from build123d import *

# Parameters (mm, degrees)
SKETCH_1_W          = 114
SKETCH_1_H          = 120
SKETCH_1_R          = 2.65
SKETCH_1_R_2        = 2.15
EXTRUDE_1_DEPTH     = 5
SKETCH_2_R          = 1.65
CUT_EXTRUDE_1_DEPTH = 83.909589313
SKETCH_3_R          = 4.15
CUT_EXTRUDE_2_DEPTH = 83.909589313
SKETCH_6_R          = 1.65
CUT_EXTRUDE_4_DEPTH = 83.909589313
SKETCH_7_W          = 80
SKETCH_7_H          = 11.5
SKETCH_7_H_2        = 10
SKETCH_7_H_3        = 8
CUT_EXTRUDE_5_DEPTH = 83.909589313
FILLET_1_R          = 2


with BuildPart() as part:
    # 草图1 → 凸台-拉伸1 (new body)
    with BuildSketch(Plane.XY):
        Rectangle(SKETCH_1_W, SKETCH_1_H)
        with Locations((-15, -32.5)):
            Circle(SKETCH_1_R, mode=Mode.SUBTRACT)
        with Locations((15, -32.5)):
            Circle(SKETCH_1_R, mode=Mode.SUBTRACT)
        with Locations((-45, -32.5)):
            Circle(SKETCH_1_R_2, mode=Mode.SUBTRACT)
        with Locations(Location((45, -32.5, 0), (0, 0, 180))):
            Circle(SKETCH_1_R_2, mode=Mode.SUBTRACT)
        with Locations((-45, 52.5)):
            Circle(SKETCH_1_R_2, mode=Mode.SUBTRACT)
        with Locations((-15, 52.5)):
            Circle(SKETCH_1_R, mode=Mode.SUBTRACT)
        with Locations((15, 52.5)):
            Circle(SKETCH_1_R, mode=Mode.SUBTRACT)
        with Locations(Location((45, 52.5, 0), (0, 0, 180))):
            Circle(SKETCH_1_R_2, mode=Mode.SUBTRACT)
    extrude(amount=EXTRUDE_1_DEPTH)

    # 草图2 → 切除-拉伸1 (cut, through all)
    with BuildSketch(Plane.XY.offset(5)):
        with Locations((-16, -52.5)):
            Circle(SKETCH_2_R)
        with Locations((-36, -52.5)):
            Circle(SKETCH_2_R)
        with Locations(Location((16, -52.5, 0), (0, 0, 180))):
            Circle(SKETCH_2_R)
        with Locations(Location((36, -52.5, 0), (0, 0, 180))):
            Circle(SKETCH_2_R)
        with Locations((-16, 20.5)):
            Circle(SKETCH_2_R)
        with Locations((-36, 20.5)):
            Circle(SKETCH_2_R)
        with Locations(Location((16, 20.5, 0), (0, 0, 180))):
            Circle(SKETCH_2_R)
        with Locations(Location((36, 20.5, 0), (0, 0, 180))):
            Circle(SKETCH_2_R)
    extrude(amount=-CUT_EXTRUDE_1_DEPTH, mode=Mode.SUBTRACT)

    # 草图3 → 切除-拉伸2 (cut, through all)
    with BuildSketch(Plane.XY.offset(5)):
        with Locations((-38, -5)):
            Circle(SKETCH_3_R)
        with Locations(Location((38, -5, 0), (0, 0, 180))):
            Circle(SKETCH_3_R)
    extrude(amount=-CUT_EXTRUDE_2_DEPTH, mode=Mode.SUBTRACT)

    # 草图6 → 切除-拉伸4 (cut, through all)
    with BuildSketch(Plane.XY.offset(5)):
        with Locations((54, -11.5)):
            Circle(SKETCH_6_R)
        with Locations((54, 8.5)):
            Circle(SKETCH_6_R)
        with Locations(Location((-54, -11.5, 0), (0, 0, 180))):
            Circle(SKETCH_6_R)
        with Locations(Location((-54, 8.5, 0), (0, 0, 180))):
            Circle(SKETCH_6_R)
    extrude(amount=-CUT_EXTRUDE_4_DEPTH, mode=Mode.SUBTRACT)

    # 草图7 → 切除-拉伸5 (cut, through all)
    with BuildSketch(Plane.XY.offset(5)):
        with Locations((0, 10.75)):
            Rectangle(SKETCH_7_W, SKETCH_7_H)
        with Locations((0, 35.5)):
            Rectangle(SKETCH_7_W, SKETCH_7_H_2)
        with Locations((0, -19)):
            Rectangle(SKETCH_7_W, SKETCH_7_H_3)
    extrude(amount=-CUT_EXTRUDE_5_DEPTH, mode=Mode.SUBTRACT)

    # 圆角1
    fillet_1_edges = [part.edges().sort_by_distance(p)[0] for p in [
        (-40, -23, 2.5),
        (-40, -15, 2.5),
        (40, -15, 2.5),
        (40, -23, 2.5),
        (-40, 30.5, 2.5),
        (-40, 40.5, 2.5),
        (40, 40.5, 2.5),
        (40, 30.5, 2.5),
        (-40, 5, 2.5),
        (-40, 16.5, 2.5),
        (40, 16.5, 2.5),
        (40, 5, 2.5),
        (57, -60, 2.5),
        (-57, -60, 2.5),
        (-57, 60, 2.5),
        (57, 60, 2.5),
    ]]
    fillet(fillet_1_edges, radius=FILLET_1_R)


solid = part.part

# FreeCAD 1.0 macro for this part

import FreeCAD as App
import Part
import Sketcher


def edges_at(feature, points):
    """Names of the edges that pass closest to the given points."""
    edges = feature.Shape.Edges
    near = lambda p: min(range(len(edges)), key=lambda i: edges[i].distToShape(Part.Vertex(*p))[0])
    return sorted({f"Edge{near(p) + 1}" for p in points})


def add_polygon(sketch, points):
    """Adds a closed chain of lines whose ends are joined by coincident constraints."""
    first, n = sketch.GeometryCount, len(points)
    for a, b in zip(points, points[1:] + points[:1]):
        sketch.addGeometry(Part.LineSegment(App.Vector(*a, 0), App.Vector(*b, 0)), False)
    for i in range(n):
        sketch.addConstraint(Sketcher.Constraint("Coincident", first + i, 2, first + (i + 1) % n, 1))

doc = App.newDocument("Part")
body = doc.addObject("PartDesign::Body", "Body")

# Sketch on XY plane
sketch1 = doc.addObject("Sketcher::SketchObject", "Sketch")
body.addObject(sketch1)
sketch1.AttachmentSupport = (doc.XY_Plane, [""])
sketch1.MapMode = "FlatFace"
add_polygon(sketch1, [(-57, 60), (-57, -60), (57, -60), (57, 60)])  # lines 0-3
sketch1.addGeometry(Part.Circle(App.Vector(-45, -32.5, 0), App.Vector(0, 0, 1), 2.1), False)  # 4
sketch1.addGeometry(Part.Circle(App.Vector(-15, -32.5, 0), App.Vector(0, 0, 1), 2.6), False)  # 5
sketch1.addGeometry(Part.Circle(App.Vector(15, -32.5, 0), App.Vector(0, 0, 1), 2.6), False)  # 6
sketch1.addGeometry(Part.Circle(App.Vector(45, -32.5, 0), App.Vector(0, 0, 1), 2.1), False)  # 7
sketch1.addGeometry(Part.Circle(App.Vector(-45, 52.5, 0), App.Vector(0, 0, 1), 2.1), False)  # 8
sketch1.addGeometry(Part.Circle(App.Vector(-15, 52.5, 0), App.Vector(0, 0, 1), 2.6), False)  # 9
sketch1.addGeometry(Part.Circle(App.Vector(15, 52.5, 0), App.Vector(0, 0, 1), 2.6), False)  # 10
sketch1.addGeometry(Part.Circle(App.Vector(45, 52.5, 0), App.Vector(0, 0, 1), 2.1), False)  # 11
sketch1.addConstraint([
    Sketcher.Constraint("Vertical", 0),
    Sketcher.Constraint("Horizontal", 1),
    Sketcher.Constraint("Vertical", 2),
    Sketcher.Constraint("Horizontal", 3),
    Sketcher.Constraint("Equal", 5, 6),
    Sketcher.Constraint("Equal", 4, 7),
    Sketcher.Constraint("Equal", 7, 8),
    Sketcher.Constraint("Equal", 6, 9),
    Sketcher.Constraint("Equal", 9, 10),
    Sketcher.Constraint("Equal", 8, 11),
    Sketcher.Constraint("Symmetric", 0, 2, 2, 2, -1, 1),
    Sketcher.Constraint("Symmetric", 5, 3, 6, 3, -2),
    Sketcher.Constraint("Symmetric", 4, 3, 7, 3, -2),
    Sketcher.Constraint("Symmetric", 9, 3, 10, 3, -2),
    Sketcher.Constraint("Symmetric", 8, 3, 11, 3, -2),
    Sketcher.Constraint("Horizontal", 4, 3, 5, 3),
    Sketcher.Constraint("Horizontal", 8, 3, 9, 3),
    Sketcher.Constraint("Vertical", 4, 3, 8, 3),
    Sketcher.Constraint("Vertical", 5, 3, 9, 3),
    Sketcher.Constraint("Diameter", 4, 4.3),
    Sketcher.Constraint("Diameter", 5, 5.3),
    Sketcher.Constraint("DistanceX", 1, 1, 1, 2, 114.0),
    Sketcher.Constraint("DistanceY", 0, 2, 0, 1, 120.0),
    Sketcher.Constraint("DistanceX", 4, 3, -1, 1, 45.0),
    Sketcher.Constraint("DistanceX", 5, 3, -1, 1, 15.0),
    Sketcher.Constraint("DistanceY", 4, 3, 8, 3, 85.0),
    Sketcher.Constraint("DistanceY", 4, 3, -1, 1, 32.5),
])
pad1 = doc.addObject("PartDesign::Pad", "Pad")
body.addObject(pad1)
pad1.Profile = sketch1
pad1.Length = 5

# Sketch on XY plane
sketch2 = doc.addObject("Sketcher::SketchObject", "Sketch001")
body.addObject(sketch2)
sketch2.AttachmentSupport = (doc.XY_Plane, [""])
sketch2.MapMode = "FlatFace"
sketch2.AttachmentOffset = App.Placement(App.Vector(0, 0, 5), App.Rotation())
sketch2.addGeometry([
    Part.Circle(App.Vector(-16, -52.5, 0), App.Vector(0, 0, 1), 1.6),  # 0
    Part.Circle(App.Vector(-36, -52.5, 0), App.Vector(0, 0, 1), 1.6),  # 1
    Part.Circle(App.Vector(16, -52.5, 0), App.Vector(0, 0, 1), 1.6),  # 2
    Part.Circle(App.Vector(36, -52.5, 0), App.Vector(0, 0, 1), 1.6),  # 3
    Part.Circle(App.Vector(-16, 20.5, 0), App.Vector(0, 0, 1), 1.6),  # 4
    Part.Circle(App.Vector(-36, 20.5, 0), App.Vector(0, 0, 1), 1.6),  # 5
    Part.Circle(App.Vector(16, 20.5, 0), App.Vector(0, 0, 1), 1.6),  # 6
    Part.Circle(App.Vector(36, 20.5, 0), App.Vector(0, 0, 1), 1.6),  # 7
], False)
sketch2.addConstraint([
    Sketcher.Constraint("Equal", 0, 1),
    Sketcher.Constraint("Equal", 1, 2),
    Sketcher.Constraint("Equal", 2, 3),
    Sketcher.Constraint("Equal", 3, 4),
    Sketcher.Constraint("Equal", 4, 5),
    Sketcher.Constraint("Equal", 5, 6),
    Sketcher.Constraint("Equal", 6, 7),
    Sketcher.Constraint("Symmetric", 0, 3, 2, 3, -2),
    Sketcher.Constraint("Symmetric", 1, 3, 3, 3, -2),
    Sketcher.Constraint("Symmetric", 4, 3, 6, 3, -2),
    Sketcher.Constraint("Symmetric", 5, 3, 7, 3, -2),
    Sketcher.Constraint("Horizontal", 0, 3, 1, 3),
    Sketcher.Constraint("Horizontal", 4, 3, 5, 3),
    Sketcher.Constraint("Vertical", 0, 3, 4, 3),
    Sketcher.Constraint("Vertical", 1, 3, 5, 3),
    Sketcher.Constraint("Diameter", 0, 3.3),
    Sketcher.Constraint("DistanceX", 0, 3, -1, 1, 16.0),
    Sketcher.Constraint("DistanceX", 1, 3, -1, 1, 36.0),
    Sketcher.Constraint("DistanceY", 0, 3, 4, 3, 73.0),
    Sketcher.Constraint("DistanceY", 0, 3, -1, 1, 52.5),
])
pocket1 = doc.addObject("PartDesign::Pocket", "Pocket")
body.addObject(pocket1)
pocket1.Profile = sketch2
pocket1.Type = "ThroughAll"

# Sketch on XY plane
sketch3 = doc.addObject("Sketcher::SketchObject", "Sketch002")
body.addObject(sketch3)
sketch3.AttachmentSupport = (doc.XY_Plane, [""])
sketch3.MapMode = "FlatFace"
sketch3.AttachmentOffset = App.Placement(App.Vector(0, 0, 5), App.Rotation())
sketch3.addGeometry([
    Part.Circle(App.Vector(-38, -5, 0), App.Vector(0, 0, 1), 4.2),
    Part.Circle(App.Vector(38, -5, 0), App.Vector(0, 0, 1), 4.2),
], False)
sketch3.addConstraint([
    Sketcher.Constraint("Equal", 0, 1),
    Sketcher.Constraint("Symmetric", 0, 3, 1, 3, -2),
    Sketcher.Constraint("Diameter", 0, 8.3),
    Sketcher.Constraint("DistanceX", 0, 3, -1, 1, 38.0),
    Sketcher.Constraint("DistanceY", 0, 3, -1, 1, 5.0),
])
pocket2 = doc.addObject("PartDesign::Pocket", "Pocket001")
body.addObject(pocket2)
pocket2.Profile = sketch3
pocket2.Type = "ThroughAll"

# Sketch on XY plane
sketch4 = doc.addObject("Sketcher::SketchObject", "Sketch003")
body.addObject(sketch4)
sketch4.AttachmentSupport = (doc.XY_Plane, [""])
sketch4.MapMode = "FlatFace"
sketch4.AttachmentOffset = App.Placement(App.Vector(0, 0, 5), App.Rotation())
sketch4.addGeometry([
    Part.Circle(App.Vector(54, -11.5, 0), App.Vector(0, 0, 1), 1.6),
    Part.Circle(App.Vector(54, 8.5, 0), App.Vector(0, 0, 1), 1.6),
    Part.Circle(App.Vector(-54, -11.5, 0), App.Vector(0, 0, 1), 1.6),
    Part.Circle(App.Vector(-54, 8.5, 0), App.Vector(0, 0, 1), 1.6),
], False)
sketch4.addConstraint([
    Sketcher.Constraint("Equal", 0, 1),
    Sketcher.Constraint("Equal", 1, 2),
    Sketcher.Constraint("Equal", 2, 3),
    Sketcher.Constraint("Symmetric", 0, 3, 2, 3, -2),
    Sketcher.Constraint("Symmetric", 1, 3, 3, 3, -2),
    Sketcher.Constraint("Vertical", 0, 3, 1, 3),
    Sketcher.Constraint("Diameter", 0, 3.3),
    Sketcher.Constraint("DistanceX", -1, 1, 0, 3, 54.0),
    Sketcher.Constraint("DistanceY", 0, 3, 1, 3, 20.0),
    Sketcher.Constraint("DistanceY", 0, 3, -1, 1, 11.5),
])
pocket3 = doc.addObject("PartDesign::Pocket", "Pocket002")
body.addObject(pocket3)
pocket3.Profile = sketch4
pocket3.Type = "ThroughAll"

# Sketch on XY plane
sketch5 = doc.addObject("Sketcher::SketchObject", "Sketch004")
body.addObject(sketch5)
sketch5.AttachmentSupport = (doc.XY_Plane, [""])
sketch5.MapMode = "FlatFace"
sketch5.AttachmentOffset = App.Placement(App.Vector(0, 0, 5), App.Rotation())
add_polygon(sketch5, [(-40, 16), (-40, 5), (40, 5), (40, 16)])  # lines 0-3
add_polygon(sketch5, [(-40, 40), (-40, 30), (40, 30), (40, 40)])  # lines 4-7
add_polygon(sketch5, [(-40, -15), (-40, -23), (40, -23), (40, -15)])  # lines 8-11
sketch5.addConstraint([
    Sketcher.Constraint("Vertical", 0),
    Sketcher.Constraint("Horizontal", 1),
    Sketcher.Constraint("Vertical", 2),
    Sketcher.Constraint("Horizontal", 3),
    Sketcher.Constraint("Vertical", 4),
    Sketcher.Constraint("Horizontal", 5),
    Sketcher.Constraint("Vertical", 6),
    Sketcher.Constraint("Horizontal", 7),
    Sketcher.Constraint("Vertical", 8),
    Sketcher.Constraint("Horizontal", 9),
    Sketcher.Constraint("Vertical", 10),
    Sketcher.Constraint("Horizontal", 11),
    Sketcher.Constraint("Vertical", 3, 2, 4, 2),
    Sketcher.Constraint("Vertical", 2, 2, 5, 2),
    Sketcher.Constraint("Vertical", 7, 2, 8, 2),
    Sketcher.Constraint("Vertical", 6, 2, 9, 2),
    Sketcher.Constraint("DistanceX", 1, 1, 1, 2, 80.0),
    Sketcher.Constraint("DistanceY", 4, 2, 4, 1, 10.0),
    Sketcher.Constraint("DistanceY", 8, 2, 8, 1, 8.0),
    Sketcher.Constraint("DistanceY", 0, 2, 0, 1, 11.5),
    Sketcher.Constraint("DistanceX", 0, 2, -1, 1, 40.0),
    Sketcher.Constraint("DistanceY", -1, 1, 0, 2, 5.0),
    Sketcher.Constraint("DistanceY", 8, 2, -1, 1, 23.0),
    Sketcher.Constraint("DistanceY", 3, 2, 4, 2, 14.0),
])
pocket4 = doc.addObject("PartDesign::Pocket", "Pocket003")
body.addObject(pocket4)
pocket4.Profile = sketch5
pocket4.Type = "ThroughAll"
doc.recompute()

fillet = doc.addObject("PartDesign::Fillet", "Fillet")
body.addObject(fillet)
fillet.Base = (pocket4, edges_at(pocket4, [
    (-40, -23, 2.5),
    (-40, -15, 2.5),
    (40, -15, 2.5),
    (40, -23, 2.5),
    (-40, 30.5, 2.5),
    (-40, 40.5, 2.5),
    (40, 40.5, 2.5),
    (40, 30.5, 2.5),
    (-40, 5, 2.5),
    (-40, 16.5, 2.5),
    (40, 16.5, 2.5),
    (40, 5, 2.5),
    (57, -60, 2.5),
    (-57, -60, 2.5),
    (-57, 60, 2.5),
    (57, 60, 2.5),
]))
fillet.Radius = 2

doc.recompute()
